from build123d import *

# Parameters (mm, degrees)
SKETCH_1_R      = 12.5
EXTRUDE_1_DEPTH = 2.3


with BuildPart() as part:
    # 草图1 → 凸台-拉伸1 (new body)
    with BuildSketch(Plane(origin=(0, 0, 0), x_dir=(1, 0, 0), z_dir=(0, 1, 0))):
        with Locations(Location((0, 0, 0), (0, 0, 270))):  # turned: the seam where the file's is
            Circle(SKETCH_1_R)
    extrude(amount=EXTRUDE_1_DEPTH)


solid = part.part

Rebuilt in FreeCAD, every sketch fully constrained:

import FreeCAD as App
import Part
import Sketcher
from FreeCAD import Vector
Q = App.Units.Quantity

doc = App.newDocument("Part")
body = doc.addObject("PartDesign::Body", "Body")

sketch1 = body.newObject("Sketcher::SketchObject", "Sketch")
sketch1.AttachmentSupport = (doc.getObject("XZ_Plane"), [""])
sketch1.MapMode = "FlatFace"
sketch1.addGeometry(Part.Circle(Vector(0, 0, 0), Vector(0, 0, 1), 12.5), False)
sketch1.addConstraint([
    Sketcher.Constraint("Coincident", 0, 3, -1, 1),
    Sketcher.Constraint("Diameter", 0, Q("25 mm")),
])
pad1 = body.newObject("PartDesign::Pad", "Pad")
pad1.Profile = sketch1
pad1.Length = 2.3
pad1.Reversed = True

doc.recompute()
